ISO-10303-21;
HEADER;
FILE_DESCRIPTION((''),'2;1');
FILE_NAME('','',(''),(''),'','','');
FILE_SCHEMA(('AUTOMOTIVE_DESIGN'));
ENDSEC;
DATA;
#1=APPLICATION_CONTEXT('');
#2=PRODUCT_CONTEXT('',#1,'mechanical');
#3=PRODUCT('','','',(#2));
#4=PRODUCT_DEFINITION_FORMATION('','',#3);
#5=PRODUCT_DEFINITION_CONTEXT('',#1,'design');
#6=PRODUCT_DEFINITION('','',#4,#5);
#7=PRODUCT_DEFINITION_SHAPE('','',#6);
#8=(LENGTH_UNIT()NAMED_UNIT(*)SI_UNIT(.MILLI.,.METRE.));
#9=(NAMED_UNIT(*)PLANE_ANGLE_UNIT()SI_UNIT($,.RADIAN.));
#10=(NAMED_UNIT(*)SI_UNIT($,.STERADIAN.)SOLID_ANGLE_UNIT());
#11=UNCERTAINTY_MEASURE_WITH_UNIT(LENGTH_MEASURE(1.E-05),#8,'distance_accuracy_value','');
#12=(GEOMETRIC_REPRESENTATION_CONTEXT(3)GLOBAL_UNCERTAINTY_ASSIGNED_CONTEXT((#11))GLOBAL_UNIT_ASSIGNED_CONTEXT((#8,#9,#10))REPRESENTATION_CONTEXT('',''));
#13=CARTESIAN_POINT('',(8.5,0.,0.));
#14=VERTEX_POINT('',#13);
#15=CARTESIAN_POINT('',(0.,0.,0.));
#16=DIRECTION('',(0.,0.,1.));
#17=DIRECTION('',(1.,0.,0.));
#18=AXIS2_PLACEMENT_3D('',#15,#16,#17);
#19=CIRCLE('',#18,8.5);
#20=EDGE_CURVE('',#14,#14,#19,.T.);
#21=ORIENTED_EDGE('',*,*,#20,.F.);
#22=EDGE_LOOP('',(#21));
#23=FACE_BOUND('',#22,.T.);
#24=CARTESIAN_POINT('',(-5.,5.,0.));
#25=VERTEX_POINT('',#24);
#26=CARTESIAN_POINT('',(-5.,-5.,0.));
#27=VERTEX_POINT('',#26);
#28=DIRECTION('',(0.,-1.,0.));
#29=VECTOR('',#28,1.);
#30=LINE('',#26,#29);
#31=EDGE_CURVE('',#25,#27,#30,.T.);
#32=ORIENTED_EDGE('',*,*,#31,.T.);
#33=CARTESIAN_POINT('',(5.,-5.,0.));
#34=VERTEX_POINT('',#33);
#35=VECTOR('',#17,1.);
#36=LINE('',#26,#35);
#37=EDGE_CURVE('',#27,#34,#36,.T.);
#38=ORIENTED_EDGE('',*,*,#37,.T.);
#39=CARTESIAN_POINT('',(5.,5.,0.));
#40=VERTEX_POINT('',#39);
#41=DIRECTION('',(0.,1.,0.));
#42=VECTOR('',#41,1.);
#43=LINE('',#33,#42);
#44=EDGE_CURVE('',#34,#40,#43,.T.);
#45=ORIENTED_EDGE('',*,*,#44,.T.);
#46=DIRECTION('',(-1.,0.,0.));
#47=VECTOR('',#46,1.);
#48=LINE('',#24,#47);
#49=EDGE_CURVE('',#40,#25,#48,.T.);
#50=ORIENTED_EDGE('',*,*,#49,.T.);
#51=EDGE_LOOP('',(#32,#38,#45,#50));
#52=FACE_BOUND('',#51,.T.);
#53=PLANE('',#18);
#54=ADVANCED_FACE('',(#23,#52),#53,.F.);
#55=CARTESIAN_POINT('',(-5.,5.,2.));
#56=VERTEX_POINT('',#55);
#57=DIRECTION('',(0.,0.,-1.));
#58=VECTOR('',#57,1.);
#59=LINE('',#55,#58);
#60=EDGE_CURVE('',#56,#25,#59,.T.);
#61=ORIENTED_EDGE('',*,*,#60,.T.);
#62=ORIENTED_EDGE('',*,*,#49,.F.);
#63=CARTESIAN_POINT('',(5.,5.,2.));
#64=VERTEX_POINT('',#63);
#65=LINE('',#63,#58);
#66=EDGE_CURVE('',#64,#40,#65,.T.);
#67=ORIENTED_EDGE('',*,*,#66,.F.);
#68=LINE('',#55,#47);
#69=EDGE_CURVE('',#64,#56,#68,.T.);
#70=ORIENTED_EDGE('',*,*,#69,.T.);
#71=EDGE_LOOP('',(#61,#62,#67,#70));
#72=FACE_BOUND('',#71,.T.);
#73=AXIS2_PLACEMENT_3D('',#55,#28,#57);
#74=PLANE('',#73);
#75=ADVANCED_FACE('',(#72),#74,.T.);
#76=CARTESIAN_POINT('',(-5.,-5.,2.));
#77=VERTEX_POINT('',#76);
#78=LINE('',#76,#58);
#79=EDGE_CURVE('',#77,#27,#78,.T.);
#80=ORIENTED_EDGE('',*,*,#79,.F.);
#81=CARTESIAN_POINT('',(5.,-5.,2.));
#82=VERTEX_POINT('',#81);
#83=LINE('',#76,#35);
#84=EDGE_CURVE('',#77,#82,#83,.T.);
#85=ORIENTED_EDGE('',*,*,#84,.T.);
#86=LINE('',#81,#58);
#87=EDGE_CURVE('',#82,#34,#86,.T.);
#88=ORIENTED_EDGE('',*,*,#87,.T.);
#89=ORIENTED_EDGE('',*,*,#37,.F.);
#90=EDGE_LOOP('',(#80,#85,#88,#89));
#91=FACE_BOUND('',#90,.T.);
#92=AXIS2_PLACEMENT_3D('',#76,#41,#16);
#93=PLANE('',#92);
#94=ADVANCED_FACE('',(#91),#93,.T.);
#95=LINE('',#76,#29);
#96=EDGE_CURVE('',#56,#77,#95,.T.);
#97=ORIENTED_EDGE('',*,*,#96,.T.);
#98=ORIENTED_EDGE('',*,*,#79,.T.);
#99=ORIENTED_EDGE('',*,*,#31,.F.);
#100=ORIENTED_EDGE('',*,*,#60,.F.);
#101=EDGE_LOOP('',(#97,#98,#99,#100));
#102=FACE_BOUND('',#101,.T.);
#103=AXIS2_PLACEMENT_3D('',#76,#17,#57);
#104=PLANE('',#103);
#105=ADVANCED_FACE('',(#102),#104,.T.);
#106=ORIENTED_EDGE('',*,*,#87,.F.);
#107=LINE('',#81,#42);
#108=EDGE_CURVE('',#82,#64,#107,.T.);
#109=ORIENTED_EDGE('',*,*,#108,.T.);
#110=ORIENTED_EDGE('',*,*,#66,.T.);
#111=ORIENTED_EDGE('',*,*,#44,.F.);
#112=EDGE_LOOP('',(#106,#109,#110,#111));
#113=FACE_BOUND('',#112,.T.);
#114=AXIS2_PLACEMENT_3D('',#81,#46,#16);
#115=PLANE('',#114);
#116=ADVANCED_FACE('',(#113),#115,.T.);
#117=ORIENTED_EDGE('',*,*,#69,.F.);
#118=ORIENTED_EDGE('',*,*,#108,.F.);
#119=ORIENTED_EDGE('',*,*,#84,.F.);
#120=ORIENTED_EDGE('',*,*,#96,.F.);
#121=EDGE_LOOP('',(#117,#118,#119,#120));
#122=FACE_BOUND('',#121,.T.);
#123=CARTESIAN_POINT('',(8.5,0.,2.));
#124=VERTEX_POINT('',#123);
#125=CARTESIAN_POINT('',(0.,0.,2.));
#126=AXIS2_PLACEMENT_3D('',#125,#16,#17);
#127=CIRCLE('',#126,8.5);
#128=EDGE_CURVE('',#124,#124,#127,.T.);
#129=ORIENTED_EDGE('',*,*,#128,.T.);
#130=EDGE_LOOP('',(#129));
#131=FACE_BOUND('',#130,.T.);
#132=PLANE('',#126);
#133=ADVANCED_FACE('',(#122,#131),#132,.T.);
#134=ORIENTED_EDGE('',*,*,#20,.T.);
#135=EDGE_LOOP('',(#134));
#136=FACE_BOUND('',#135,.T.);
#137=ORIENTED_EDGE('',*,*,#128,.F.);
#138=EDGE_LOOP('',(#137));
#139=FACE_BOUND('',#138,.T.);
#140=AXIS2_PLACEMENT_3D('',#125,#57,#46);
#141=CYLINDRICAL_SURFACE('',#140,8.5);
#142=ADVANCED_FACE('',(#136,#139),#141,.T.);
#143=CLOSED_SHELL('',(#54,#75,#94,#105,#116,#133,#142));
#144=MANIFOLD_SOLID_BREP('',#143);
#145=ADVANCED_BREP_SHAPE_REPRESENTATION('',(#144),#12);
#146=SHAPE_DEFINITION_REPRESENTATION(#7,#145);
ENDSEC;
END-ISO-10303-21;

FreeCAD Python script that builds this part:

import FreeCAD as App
import Part
import Sketcher
from FreeCAD import Vector

doc = App.newDocument("Part")
params = doc.addObject("Spreadsheet::Sheet", "Params")
for row, (alias, value) in enumerate([
    ("sketch1_diameter", "17 mm"),
    ("sketch1_width", "10 mm"),
    ("pad1_length", "2 mm"),
], start=1):
    params.set(f"A{row}", alias)
    params.set(f"B{row}", "=" + value)
    params.setAlias(f"B{row}", alias)

body = doc.addObject("PartDesign::Body", "Body")

sketch1 = doc.addObject("Sketcher::SketchObject", "Sketch")
body.addObject(sketch1)
sketch1.AttachmentSupport = (doc.XY_Plane, [""])
sketch1.MapMode = "FlatFace"
sketch1.addGeometry(Part.Circle(Vector(0, 0, 0), Vector(0, 0, 1), 8.5), False)
sketch1.addGeometry(Part.LineSegment(Vector(5, -5, 0), Vector(-5, -5, 0)), False)
sketch1.addGeometry(Part.LineSegment(Vector(-5, -5, 0), Vector(-5, 5, 0)), False)
sketch1.addGeometry(Part.LineSegment(Vector(-5, 5, 0), Vector(5, 5, 0)), False)
sketch1.addGeometry(Part.LineSegment(Vector(5, 5, 0), Vector(5, -5, 0)), False)
sketch1.addConstraint(Sketcher.Constraint("Coincident", 1, 2, 2, 1))
sketch1.addConstraint(Sketcher.Constraint("Coincident", 2, 2, 3, 1))
sketch1.addConstraint(Sketcher.Constraint("Coincident", 3, 2, 4, 1))
sketch1.addConstraint(Sketcher.Constraint("Coincident", 4, 2, 1, 1))
sketch1.addConstraint(Sketcher.Constraint("Horizontal", 1))
sketch1.addConstraint(Sketcher.Constraint("Vertical", 2))
sketch1.addConstraint(Sketcher.Constraint("Horizontal", 3))
sketch1.addConstraint(Sketcher.Constraint("Vertical", 4))
sketch1.addConstraint(Sketcher.Constraint("Coincident", 0, 3, -1, 1))
sketch1.addConstraint(Sketcher.Constraint("Symmetric", 1, 2, 3, 2, -1, 1))
sketch1.addConstraint(Sketcher.Constraint("Equal", 3, 2))
sketch1.addConstraint(Sketcher.Constraint("Diameter", 0, 17.0))
sketch1.addConstraint(Sketcher.Constraint("DistanceX", 1, 2, 1, 1, 10.0))
sketch1.setExpression("Constraints[11]", "Params.sketch1_diameter")
sketch1.setExpression("Constraints[12]", "Params.sketch1_width")
pad1 = doc.addObject("PartDesign::Pad", "Pad")
body.addObject(pad1)
pad1.Profile = sketch1
pad1.setExpression("Length", "Params.pad1_length")

doc.recompute()
